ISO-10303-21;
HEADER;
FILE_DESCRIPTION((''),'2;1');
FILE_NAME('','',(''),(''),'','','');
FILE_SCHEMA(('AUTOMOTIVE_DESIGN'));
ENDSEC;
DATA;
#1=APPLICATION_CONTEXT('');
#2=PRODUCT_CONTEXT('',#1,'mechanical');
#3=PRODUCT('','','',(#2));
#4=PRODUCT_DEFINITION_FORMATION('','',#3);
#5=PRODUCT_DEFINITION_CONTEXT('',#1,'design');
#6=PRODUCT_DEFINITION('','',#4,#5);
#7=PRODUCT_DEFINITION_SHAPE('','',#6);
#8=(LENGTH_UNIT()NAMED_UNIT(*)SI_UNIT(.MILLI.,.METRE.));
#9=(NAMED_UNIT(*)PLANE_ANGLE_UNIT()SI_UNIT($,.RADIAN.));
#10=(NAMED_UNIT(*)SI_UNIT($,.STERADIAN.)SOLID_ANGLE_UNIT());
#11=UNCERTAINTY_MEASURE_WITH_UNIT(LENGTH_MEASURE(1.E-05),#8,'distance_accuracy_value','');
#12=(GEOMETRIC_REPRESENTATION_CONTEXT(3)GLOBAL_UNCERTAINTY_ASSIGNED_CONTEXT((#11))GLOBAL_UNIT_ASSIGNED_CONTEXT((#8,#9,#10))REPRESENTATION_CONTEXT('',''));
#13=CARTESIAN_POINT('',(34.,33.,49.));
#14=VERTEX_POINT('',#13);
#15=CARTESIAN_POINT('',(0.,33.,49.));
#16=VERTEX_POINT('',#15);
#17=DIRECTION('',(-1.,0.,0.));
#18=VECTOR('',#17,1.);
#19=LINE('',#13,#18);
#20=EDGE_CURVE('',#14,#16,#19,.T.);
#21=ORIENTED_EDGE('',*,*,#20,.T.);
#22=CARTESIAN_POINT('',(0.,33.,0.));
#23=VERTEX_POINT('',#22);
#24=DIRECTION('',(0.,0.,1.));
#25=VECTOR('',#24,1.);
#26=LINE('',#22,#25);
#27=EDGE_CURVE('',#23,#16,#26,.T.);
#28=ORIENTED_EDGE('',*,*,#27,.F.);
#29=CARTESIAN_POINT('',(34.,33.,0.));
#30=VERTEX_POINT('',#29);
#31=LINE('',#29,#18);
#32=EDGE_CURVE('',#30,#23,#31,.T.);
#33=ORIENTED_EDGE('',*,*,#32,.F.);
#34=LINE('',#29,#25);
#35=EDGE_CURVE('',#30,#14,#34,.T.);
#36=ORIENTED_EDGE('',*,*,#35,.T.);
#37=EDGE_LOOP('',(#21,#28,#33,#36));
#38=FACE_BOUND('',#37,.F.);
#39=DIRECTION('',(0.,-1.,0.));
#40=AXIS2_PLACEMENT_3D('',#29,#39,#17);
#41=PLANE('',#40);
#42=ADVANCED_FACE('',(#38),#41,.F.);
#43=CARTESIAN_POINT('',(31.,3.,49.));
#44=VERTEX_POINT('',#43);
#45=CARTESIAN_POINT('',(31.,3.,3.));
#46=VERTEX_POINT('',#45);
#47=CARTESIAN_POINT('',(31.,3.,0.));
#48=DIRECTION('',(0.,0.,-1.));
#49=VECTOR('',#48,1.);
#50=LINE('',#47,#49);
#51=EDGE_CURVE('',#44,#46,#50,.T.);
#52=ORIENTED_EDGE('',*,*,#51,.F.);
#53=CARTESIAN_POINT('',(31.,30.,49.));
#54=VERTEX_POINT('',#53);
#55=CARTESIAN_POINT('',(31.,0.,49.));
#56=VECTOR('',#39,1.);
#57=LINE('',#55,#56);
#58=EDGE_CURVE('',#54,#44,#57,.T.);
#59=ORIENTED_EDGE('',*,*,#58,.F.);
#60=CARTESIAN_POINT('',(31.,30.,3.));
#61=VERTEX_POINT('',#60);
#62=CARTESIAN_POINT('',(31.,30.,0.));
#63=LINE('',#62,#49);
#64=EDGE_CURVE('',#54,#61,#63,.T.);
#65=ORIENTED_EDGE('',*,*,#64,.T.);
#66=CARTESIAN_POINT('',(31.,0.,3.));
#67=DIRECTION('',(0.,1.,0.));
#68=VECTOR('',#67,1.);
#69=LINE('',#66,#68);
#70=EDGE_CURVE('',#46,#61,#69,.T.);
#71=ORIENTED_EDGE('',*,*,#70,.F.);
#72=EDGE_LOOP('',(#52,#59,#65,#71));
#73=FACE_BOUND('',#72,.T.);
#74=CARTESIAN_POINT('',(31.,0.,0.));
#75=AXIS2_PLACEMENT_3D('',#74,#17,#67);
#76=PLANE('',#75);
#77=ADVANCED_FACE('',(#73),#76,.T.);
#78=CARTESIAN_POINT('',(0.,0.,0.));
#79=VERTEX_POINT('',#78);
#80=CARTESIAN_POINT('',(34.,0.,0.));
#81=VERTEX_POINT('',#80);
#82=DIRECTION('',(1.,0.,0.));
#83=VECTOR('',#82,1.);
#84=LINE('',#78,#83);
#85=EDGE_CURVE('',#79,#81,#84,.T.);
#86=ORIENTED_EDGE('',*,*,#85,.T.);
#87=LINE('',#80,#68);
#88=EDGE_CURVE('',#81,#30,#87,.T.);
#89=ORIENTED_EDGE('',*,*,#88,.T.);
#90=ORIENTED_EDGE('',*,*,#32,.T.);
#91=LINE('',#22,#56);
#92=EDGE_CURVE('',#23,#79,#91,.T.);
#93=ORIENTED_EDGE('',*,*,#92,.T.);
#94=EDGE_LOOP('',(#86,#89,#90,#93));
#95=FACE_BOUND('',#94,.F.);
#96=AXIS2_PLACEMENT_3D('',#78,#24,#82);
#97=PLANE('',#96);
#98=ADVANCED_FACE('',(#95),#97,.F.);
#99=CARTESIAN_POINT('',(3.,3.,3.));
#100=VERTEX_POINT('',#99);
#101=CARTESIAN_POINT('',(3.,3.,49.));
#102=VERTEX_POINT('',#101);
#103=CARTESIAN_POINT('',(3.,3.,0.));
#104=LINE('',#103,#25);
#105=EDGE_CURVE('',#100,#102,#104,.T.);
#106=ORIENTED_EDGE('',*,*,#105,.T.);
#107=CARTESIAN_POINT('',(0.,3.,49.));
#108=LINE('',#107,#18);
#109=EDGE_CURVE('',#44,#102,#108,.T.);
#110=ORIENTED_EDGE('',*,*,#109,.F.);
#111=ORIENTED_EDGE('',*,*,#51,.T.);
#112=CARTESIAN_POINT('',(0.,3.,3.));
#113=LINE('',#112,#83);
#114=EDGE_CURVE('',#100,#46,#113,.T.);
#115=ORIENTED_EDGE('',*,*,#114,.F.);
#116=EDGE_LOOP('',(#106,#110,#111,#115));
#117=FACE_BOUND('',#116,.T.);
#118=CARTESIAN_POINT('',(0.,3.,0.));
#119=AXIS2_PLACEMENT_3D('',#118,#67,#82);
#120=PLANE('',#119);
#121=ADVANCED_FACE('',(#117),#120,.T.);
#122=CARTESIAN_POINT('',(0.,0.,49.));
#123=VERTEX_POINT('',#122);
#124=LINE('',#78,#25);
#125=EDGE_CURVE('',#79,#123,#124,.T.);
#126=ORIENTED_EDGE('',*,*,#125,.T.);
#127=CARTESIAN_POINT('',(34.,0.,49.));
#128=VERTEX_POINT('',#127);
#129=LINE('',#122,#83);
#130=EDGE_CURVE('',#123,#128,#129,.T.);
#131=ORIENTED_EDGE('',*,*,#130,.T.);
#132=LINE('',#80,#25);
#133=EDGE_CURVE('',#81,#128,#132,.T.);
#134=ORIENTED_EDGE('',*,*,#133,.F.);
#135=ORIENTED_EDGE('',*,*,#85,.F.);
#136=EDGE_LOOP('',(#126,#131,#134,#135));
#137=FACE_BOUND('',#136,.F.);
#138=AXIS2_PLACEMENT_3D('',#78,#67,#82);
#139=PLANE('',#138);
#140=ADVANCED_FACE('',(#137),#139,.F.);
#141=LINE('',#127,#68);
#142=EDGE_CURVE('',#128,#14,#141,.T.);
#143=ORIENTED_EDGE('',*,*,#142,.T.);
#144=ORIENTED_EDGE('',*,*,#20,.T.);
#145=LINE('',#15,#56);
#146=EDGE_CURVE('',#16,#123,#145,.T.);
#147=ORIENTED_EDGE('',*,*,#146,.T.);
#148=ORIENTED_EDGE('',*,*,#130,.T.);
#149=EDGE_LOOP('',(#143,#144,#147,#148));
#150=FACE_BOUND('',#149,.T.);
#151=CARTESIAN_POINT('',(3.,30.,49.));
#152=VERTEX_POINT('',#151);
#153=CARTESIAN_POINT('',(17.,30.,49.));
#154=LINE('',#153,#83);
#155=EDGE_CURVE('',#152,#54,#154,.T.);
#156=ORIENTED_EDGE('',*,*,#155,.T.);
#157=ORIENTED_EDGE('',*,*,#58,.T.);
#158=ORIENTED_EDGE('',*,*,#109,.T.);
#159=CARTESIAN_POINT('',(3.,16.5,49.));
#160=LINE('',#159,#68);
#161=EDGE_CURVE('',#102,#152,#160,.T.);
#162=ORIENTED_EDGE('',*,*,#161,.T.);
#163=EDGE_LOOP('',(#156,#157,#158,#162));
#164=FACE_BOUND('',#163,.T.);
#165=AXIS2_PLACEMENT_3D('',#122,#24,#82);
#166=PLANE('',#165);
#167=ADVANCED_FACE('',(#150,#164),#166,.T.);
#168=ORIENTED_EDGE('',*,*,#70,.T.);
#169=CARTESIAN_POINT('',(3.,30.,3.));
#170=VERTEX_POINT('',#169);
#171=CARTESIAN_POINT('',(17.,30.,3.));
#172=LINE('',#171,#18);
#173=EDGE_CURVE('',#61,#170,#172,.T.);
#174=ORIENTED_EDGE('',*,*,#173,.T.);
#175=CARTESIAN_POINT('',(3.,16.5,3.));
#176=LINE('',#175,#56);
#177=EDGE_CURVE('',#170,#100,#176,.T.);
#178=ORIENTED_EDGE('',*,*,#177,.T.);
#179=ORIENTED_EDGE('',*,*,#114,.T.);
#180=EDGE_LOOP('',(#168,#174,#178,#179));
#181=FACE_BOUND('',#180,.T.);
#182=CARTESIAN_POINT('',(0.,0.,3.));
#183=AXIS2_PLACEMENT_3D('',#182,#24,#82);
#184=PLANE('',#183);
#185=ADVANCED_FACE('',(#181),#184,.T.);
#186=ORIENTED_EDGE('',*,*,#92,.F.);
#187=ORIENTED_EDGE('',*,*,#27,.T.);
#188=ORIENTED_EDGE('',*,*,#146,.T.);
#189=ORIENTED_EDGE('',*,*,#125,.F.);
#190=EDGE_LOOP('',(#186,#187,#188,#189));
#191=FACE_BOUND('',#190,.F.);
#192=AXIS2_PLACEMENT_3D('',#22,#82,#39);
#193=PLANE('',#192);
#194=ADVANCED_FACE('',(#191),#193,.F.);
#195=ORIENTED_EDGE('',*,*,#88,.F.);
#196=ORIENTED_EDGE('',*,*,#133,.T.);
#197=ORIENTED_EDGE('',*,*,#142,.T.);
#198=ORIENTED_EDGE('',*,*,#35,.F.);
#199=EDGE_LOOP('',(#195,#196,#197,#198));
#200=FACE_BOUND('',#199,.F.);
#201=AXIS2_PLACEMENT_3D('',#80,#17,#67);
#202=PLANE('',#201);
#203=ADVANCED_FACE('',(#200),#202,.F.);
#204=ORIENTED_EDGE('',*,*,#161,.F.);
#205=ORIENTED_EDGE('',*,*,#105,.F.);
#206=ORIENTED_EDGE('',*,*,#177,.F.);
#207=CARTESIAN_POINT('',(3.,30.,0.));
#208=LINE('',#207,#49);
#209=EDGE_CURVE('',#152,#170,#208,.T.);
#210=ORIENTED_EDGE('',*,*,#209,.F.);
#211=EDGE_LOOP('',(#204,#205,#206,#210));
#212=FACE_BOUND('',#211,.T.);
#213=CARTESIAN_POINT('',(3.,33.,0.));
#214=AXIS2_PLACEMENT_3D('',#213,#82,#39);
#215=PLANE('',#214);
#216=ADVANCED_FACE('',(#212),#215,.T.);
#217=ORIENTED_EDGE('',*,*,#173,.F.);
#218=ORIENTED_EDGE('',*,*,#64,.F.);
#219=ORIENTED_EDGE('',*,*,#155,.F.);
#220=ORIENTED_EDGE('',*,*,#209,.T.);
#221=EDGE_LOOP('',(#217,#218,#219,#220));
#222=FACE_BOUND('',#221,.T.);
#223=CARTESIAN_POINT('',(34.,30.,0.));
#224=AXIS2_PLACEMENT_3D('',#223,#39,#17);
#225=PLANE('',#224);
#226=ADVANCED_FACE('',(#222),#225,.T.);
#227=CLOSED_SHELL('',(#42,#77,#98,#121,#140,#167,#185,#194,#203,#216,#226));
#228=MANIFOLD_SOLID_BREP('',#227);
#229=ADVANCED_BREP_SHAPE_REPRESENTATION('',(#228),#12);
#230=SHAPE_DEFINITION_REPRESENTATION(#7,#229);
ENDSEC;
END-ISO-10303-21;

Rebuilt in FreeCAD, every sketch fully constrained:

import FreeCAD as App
import Part
import Sketcher


def faces_at(feature, points):
    """Names of the faces that lie closest to the given points."""
    faces = feature.Shape.Faces
    near = lambda p: min(range(len(faces)), key=lambda i: faces[i].distToShape(Part.Vertex(*p))[0])
    return sorted({f"Face{near(p) + 1}" for p in points})

doc = App.newDocument("Part")
params = doc.addObject("Spreadsheet::Sheet", "Params")
for row, (alias, value) in enumerate([
    ("sketch1_width", "34 mm"),
    ("sketch1_height", "33 mm"),
    ("pad1_length", "49 mm"),
    ("thickness_wall", "3 mm"),
], start=1):
    params.set(f"A{row}", alias)
    params.set(f"B{row}", "=" + value)
    params.setAlias(f"B{row}", alias)

body = doc.addObject("PartDesign::Body", "Body")

# Sketch on XY plane
sketch1 = doc.addObject("Sketcher::SketchObject", "Sketch")
body.addObject(sketch1)
sketch1.AttachmentSupport = (doc.XY_Plane, [""])
sketch1.MapMode = "FlatFace"
sketch1.addGeometry([
    Part.LineSegment(App.Vector(0, 33, 0), App.Vector(0, 0, 0)),
    Part.LineSegment(App.Vector(0, 0, 0), App.Vector(34, 0, 0)),
    Part.LineSegment(App.Vector(34, 0, 0), App.Vector(34, 33, 0)),
    Part.LineSegment(App.Vector(34, 33, 0), App.Vector(0, 33, 0)),
], False)
sketch1.addConstraint([
    Sketcher.Constraint("Coincident", 0, 2, 1, 1),
    Sketcher.Constraint("Coincident", 1, 2, 2, 1),
    Sketcher.Constraint("Coincident", 2, 2, 3, 1),
    Sketcher.Constraint("Coincident", 3, 2, 0, 1),
    Sketcher.Constraint("Vertical", 0),
    Sketcher.Constraint("Horizontal", 1),
    Sketcher.Constraint("Vertical", 2),
    Sketcher.Constraint("Horizontal", 3),
    Sketcher.Constraint("Coincident", 0, 2, -1, 1),
    Sketcher.Constraint("DistanceX", 1, 1, 1, 2, 34.0),
    Sketcher.Constraint("DistanceY", 0, 2, 0, 1, 33.0),
])
sketch1.setExpression("Constraints[9]", "Params.sketch1_width")
sketch1.setExpression("Constraints[10]", "Params.sketch1_height")
pad1 = doc.addObject("PartDesign::Pad", "Pad")
body.addObject(pad1)
pad1.Profile = sketch1
pad1.setExpression("Length", "Params.pad1_length")
doc.recompute()

thickness = doc.addObject("PartDesign::Thickness", "Thickness")
body.addObject(thickness)
thickness.Base = (pad1, faces_at(pad1, [(11.333, 22, 49)]))
thickness.setExpression("Value", "Params.thickness_wall")
thickness.Reversed = True
thickness.Join = "Intersection"

doc.recompute()
